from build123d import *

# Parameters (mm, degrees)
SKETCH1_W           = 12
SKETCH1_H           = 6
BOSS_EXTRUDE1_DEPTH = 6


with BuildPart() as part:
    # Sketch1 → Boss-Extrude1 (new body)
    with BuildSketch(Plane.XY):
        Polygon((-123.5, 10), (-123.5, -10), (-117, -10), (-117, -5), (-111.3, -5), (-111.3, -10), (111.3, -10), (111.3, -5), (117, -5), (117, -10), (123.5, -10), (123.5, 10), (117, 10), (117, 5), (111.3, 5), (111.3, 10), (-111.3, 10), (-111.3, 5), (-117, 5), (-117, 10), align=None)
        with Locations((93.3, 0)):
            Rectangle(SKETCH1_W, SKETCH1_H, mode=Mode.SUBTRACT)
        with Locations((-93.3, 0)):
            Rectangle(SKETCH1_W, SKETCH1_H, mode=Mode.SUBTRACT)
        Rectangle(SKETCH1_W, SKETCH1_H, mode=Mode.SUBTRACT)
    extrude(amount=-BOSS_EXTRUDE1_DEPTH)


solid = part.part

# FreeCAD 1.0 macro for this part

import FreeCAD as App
import Part
import Sketcher
Q = App.Units.Quantity


def add_polygon(sketch, points):
    """Adds a closed chain of lines whose ends are joined by coincident constraints."""
    first, n = sketch.GeometryCount, len(points)
    for a, b in zip(points, points[1:] + points[:1]):
        sketch.addGeometry(Part.LineSegment(App.Vector(*a, 0), App.Vector(*b, 0)), False)
    for i in range(n):
        sketch.addConstraint(Sketcher.Constraint("Coincident", first + i, 2, first + (i + 1) % n, 1))

doc = App.newDocument("Part")
body = doc.addObject("PartDesign::Body", "Body")

sketch1 = body.newObject("Sketcher::SketchObject", "Sketch")
sketch1.AttachmentSupport = (doc.getObject("XY_Plane"), [""])
sketch1.MapMode = "FlatFace"
add_polygon(sketch1, [(-124, 10), (-124, -10), (-117, -10), (-117, -5), (-111, -5), (-111, -10), (111, -10), (111, -5), (117, -5), (117, -10), (124, -10), (124, 10), (117, 10), (117, 5), (111, 5), (111, 10), (-111, 10), (-111, 5), (-117, 5), (-117, 10)])
add_polygon(sketch1, [(-87, -3), (-99, -3), (-99, 3), (-87, 3)])
add_polygon(sketch1, [(6, -3), (-6, -3), (-6, 3), (6, 3)])
add_polygon(sketch1, [(99, -3), (87, -3), (87, 3), (99, 3)])
sketch1.addConstraint(Sketcher.Constraint("Vertical", 0))
sketch1.addConstraint(Sketcher.Constraint("Horizontal", 1))
sketch1.addConstraint(Sketcher.Constraint("Vertical", 2))
sketch1.addConstraint(Sketcher.Constraint("Horizontal", 3))
sketch1.addConstraint(Sketcher.Constraint("Vertical", 4))
sketch1.addConstraint(Sketcher.Constraint("Horizontal", 5))
sketch1.addConstraint(Sketcher.Constraint("Vertical", 6))
sketch1.addConstraint(Sketcher.Constraint("Horizontal", 7))
sketch1.addConstraint(Sketcher.Constraint("Vertical", 8))
sketch1.addConstraint(Sketcher.Constraint("Horizontal", 9))
sketch1.addConstraint(Sketcher.Constraint("Vertical", 10))
sketch1.addConstraint(Sketcher.Constraint("Horizontal", 11))
sketch1.addConstraint(Sketcher.Constraint("Vertical", 12))
sketch1.addConstraint(Sketcher.Constraint("Horizontal", 13))
sketch1.addConstraint(Sketcher.Constraint("Vertical", 14))
sketch1.addConstraint(Sketcher.Constraint("Horizontal", 15))
sketch1.addConstraint(Sketcher.Constraint("Vertical", 16))
sketch1.addConstraint(Sketcher.Constraint("Horizontal", 17))
sketch1.addConstraint(Sketcher.Constraint("Vertical", 18))
sketch1.addConstraint(Sketcher.Constraint("Horizontal", 19))
sketch1.addConstraint(Sketcher.Constraint("Horizontal", 20))
sketch1.addConstraint(Sketcher.Constraint("Vertical", 21))
sketch1.addConstraint(Sketcher.Constraint("Horizontal", 22))
sketch1.addConstraint(Sketcher.Constraint("Vertical", 23))
sketch1.addConstraint(Sketcher.Constraint("Horizontal", 24))
sketch1.addConstraint(Sketcher.Constraint("Vertical", 25))
sketch1.addConstraint(Sketcher.Constraint("Horizontal", 26))
sketch1.addConstraint(Sketcher.Constraint("Vertical", 27))
sketch1.addConstraint(Sketcher.Constraint("Horizontal", 28))
sketch1.addConstraint(Sketcher.Constraint("Vertical", 29))
sketch1.addConstraint(Sketcher.Constraint("Horizontal", 30))
sketch1.addConstraint(Sketcher.Constraint("Vertical", 31))
sketch1.addConstraint(Sketcher.Constraint("Symmetric", 0, 2, 10, 2, -1, 1))
sketch1.addConstraint(Sketcher.Constraint("Symmetric", 2, 2, 12, 2, -1, 1))
sketch1.addConstraint(Sketcher.Constraint("Symmetric", 4, 2, 14, 2, -1, 1))
sketch1.addConstraint(Sketcher.Constraint("Symmetric", 6, 2, 16, 2, -1, 1))
sketch1.addConstraint(Sketcher.Constraint("Symmetric", 8, 2, 18, 2, -1, 1))
sketch1.addConstraint(Sketcher.Constraint("Symmetric", 24, 2, 26, 2, -1, 1))
sketch1.addConstraint(Sketcher.Constraint("Symmetric", 22, 2, 28, 2, -1, 1))
sketch1.addConstraint(Sketcher.Constraint("Symmetric", 20, 2, 30, 2, -1, 1))
sketch1.addConstraint(Sketcher.Constraint("Symmetric", 3, 2, 6, 2, -2))
sketch1.addConstraint(Sketcher.Constraint("Symmetric", 1, 2, 8, 2, -2))
sketch1.addConstraint(Sketcher.Constraint("Horizontal", 1, 2, 4, 2))
sketch1.addConstraint(Sketcher.Constraint("Horizontal", 23, 2, 24, 2))
sketch1.addConstraint(Sketcher.Constraint("Horizontal", 22, 2, 25, 2))
sketch1.addConstraint(Sketcher.Constraint("Equal", 22, 24))
sketch1.addConstraint(Sketcher.Constraint("DistanceX", 20, 2, 20, 1, Q("12 mm")))
sketch1.addConstraint(Sketcher.Constraint("DistanceY", 0, 2, 0, 1, Q("20 mm")))
sketch1.addConstraint(Sketcher.Constraint("DistanceY", 2, 1, 2, 2, Q("5 mm")))
sketch1.addConstraint(Sketcher.Constraint("DistanceY", 21, 1, 21, 2, Q("6 mm")))
sketch1.addConstraint(Sketcher.Constraint("DistanceX", 1, 1, 1, 2, Q("6.5 mm")))
sketch1.addConstraint(Sketcher.Constraint("DistanceX", 3, 1, 3, 2, Q("5.7 mm")))
sketch1.addConstraint(Sketcher.Constraint("DistanceX", 5, 1, 5, 2, Q("222.6 mm")))
sketch1.addConstraint(Sketcher.Constraint("DistanceX", 3, 2, 20, 2, Q("12 mm")))
pad1 = body.newObject("PartDesign::Pad", "Pad")
pad1.Profile = sketch1
pad1.Length = 6
pad1.Reversed = True

doc.recompute()
